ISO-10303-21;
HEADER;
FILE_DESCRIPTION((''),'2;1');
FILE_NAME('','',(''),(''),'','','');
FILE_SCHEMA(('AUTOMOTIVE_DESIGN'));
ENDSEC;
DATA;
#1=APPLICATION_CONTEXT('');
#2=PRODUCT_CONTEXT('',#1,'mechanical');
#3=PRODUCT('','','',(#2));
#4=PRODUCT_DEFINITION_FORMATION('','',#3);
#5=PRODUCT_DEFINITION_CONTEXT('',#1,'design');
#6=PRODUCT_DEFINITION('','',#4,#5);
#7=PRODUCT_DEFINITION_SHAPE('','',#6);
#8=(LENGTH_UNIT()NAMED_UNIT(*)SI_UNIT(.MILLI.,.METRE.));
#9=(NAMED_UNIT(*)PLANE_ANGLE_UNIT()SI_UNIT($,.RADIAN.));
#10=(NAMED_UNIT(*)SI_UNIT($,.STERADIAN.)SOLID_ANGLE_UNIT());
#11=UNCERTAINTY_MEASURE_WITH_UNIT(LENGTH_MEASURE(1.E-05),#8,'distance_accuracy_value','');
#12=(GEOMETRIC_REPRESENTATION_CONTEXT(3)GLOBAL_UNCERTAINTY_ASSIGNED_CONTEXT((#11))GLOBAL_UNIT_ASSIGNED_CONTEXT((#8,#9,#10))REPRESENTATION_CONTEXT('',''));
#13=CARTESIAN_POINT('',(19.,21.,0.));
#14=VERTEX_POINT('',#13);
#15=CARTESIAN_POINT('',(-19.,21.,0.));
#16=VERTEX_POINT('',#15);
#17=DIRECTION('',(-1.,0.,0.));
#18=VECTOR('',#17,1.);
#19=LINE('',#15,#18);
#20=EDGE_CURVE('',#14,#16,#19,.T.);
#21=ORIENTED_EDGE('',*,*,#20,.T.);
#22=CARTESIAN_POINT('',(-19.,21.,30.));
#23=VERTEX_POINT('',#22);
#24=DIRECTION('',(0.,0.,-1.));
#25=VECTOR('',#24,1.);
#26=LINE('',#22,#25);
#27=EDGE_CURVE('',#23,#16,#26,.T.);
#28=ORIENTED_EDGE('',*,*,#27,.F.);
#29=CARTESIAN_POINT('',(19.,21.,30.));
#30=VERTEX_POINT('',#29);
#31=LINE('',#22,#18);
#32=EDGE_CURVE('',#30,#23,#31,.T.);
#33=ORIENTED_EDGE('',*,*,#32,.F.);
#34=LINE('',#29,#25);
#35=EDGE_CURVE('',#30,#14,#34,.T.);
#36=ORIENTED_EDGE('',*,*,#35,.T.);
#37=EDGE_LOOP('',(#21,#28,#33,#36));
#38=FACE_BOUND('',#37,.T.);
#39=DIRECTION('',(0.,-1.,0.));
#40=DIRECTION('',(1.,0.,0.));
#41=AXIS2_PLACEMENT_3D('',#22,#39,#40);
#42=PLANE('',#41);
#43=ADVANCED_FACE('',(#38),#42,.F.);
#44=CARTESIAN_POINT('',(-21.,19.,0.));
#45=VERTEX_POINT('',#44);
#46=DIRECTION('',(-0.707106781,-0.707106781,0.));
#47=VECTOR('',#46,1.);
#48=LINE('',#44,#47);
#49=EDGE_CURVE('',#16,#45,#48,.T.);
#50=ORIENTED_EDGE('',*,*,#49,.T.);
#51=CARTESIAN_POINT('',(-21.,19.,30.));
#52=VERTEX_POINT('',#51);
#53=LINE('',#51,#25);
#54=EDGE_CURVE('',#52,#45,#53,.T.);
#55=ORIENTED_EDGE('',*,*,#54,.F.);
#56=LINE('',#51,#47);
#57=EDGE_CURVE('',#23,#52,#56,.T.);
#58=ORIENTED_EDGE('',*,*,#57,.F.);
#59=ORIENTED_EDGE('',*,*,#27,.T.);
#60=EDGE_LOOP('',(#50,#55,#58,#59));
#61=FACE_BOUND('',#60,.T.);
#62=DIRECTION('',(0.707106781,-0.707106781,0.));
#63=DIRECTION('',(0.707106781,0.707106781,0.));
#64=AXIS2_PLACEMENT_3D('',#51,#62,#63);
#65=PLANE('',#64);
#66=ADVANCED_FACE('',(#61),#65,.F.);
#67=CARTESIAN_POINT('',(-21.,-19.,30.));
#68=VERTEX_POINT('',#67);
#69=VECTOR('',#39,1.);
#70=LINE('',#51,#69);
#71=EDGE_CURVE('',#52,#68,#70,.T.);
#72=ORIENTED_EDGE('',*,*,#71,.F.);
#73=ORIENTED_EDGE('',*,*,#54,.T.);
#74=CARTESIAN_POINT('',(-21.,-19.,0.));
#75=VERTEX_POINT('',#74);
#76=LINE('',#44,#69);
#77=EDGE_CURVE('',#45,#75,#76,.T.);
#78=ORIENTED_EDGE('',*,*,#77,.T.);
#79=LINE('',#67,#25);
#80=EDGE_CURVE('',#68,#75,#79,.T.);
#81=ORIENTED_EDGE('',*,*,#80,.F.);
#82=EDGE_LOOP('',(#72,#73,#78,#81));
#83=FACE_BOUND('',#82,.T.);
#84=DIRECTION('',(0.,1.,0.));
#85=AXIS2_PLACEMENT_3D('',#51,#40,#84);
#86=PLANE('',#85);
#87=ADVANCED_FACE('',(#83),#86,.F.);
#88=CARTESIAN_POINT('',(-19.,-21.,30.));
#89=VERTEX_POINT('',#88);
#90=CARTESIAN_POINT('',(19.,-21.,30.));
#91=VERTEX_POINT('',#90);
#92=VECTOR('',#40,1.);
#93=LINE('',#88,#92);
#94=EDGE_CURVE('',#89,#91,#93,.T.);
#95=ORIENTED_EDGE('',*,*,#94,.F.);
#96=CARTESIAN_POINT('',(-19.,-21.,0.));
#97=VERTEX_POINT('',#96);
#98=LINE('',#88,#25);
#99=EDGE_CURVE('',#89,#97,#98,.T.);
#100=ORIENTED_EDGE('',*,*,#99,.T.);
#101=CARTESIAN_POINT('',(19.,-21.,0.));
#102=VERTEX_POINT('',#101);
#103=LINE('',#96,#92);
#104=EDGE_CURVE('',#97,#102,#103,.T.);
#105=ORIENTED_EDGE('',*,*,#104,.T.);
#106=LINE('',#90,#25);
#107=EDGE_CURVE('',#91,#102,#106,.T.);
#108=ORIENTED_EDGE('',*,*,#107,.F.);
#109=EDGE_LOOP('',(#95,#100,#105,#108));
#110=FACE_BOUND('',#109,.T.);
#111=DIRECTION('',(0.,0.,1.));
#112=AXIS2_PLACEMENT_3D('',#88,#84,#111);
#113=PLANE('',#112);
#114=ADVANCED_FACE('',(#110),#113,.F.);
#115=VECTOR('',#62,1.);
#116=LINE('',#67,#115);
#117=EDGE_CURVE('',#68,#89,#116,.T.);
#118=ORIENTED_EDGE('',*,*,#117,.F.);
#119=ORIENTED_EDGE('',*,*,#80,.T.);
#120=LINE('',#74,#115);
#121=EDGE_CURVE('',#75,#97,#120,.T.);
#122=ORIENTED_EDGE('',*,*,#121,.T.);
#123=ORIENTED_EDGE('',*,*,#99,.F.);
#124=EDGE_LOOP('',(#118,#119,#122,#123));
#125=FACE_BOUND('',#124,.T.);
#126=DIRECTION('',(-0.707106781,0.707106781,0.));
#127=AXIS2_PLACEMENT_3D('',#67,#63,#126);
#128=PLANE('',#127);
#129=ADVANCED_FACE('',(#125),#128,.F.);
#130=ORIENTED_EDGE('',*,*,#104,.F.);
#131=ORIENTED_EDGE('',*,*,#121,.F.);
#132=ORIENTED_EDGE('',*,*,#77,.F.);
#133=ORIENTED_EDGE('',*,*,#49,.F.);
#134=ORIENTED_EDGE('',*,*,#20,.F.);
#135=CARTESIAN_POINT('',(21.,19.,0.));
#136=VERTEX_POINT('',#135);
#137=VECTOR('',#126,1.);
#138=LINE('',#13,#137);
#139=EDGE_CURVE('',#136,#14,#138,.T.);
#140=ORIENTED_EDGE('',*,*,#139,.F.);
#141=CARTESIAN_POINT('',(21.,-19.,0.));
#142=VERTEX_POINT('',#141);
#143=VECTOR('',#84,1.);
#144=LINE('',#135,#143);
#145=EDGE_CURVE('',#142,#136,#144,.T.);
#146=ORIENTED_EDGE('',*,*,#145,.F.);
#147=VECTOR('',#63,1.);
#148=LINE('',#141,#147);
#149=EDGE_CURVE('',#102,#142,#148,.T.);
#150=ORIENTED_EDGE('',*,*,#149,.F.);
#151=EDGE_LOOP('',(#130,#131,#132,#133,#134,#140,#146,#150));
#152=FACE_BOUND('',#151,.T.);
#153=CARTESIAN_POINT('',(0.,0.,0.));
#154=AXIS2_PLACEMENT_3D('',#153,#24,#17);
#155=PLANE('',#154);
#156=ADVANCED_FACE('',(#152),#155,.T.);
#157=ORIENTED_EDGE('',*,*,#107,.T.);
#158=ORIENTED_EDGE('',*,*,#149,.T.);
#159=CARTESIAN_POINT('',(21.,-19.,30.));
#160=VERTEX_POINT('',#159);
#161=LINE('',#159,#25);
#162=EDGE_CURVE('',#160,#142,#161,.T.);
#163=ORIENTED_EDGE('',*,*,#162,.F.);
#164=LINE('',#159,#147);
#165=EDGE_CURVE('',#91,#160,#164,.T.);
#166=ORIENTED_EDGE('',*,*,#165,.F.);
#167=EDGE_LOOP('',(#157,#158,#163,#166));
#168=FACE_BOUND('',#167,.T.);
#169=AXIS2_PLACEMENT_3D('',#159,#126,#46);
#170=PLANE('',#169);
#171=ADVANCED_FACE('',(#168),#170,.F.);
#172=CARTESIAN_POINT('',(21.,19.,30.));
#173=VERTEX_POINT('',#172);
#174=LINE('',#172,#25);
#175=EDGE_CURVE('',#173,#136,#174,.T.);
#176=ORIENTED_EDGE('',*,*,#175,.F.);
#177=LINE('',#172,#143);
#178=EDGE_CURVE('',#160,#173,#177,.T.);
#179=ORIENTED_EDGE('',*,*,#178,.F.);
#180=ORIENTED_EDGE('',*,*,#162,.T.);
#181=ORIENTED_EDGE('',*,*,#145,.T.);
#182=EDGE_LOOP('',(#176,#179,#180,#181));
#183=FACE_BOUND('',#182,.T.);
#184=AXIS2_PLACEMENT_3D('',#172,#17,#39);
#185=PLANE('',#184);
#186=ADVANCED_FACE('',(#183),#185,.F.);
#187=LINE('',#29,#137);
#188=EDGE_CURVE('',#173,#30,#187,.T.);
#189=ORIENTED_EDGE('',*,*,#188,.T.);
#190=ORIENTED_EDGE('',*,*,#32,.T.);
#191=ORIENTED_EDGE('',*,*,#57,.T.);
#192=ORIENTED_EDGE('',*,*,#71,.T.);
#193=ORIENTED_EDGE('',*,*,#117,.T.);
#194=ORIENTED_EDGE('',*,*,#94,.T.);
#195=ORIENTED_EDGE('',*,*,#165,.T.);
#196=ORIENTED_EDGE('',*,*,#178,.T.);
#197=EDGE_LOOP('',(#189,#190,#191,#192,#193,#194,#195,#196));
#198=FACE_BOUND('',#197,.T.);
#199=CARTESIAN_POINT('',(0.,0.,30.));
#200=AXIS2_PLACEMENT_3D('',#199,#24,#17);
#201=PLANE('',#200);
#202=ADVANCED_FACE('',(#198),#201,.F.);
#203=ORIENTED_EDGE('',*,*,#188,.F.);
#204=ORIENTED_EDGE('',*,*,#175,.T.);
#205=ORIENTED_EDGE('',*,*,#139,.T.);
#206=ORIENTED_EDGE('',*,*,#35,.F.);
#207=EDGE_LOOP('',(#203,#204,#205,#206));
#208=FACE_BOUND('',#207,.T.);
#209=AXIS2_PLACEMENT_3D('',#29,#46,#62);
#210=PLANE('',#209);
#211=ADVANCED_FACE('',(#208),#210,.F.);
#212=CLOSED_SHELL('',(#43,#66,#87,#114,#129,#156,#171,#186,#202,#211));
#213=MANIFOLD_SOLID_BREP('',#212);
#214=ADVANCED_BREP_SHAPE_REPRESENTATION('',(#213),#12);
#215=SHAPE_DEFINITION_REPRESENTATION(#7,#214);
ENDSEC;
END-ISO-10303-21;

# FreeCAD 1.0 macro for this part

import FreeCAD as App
import Part
import Sketcher

V = App.Vector


def add_polygon(sketch, points):
    """Adds a closed chain of lines whose ends are joined by coincident constraints."""
    first, n = sketch.GeometryCount, len(points)
    for a, b in zip(points, points[1:] + points[:1]):
        sketch.addGeometry(Part.LineSegment(App.Vector(*a, 0), App.Vector(*b, 0)), False)
    for i in range(n):
        sketch.addConstraint(Sketcher.Constraint("Coincident", first + i, 2, first + (i + 1) % n, 1))

doc = App.newDocument("Part")
body = doc.addObject("PartDesign::Body", "Body")

sketch1 = body.newObject("Sketcher::SketchObject", "Sketch")
sketch1.AttachmentSupport = (doc.getObject("XY_Plane"), [""])
sketch1.MapMode = "FlatFace"
add_polygon(sketch1, [(-19, 21), (-21, 19), (-21, -19), (-19, -21), (19, -21), (21, -19), (21, 19), (19, 21)])
sketch1.addConstraint([
    Sketcher.Constraint("Vertical", 1),
    Sketcher.Constraint("Horizontal", 3),
    Sketcher.Constraint("Vertical", 5),
    Sketcher.Constraint("Horizontal", 7),
    Sketcher.Constraint("Symmetric", 0, 2, 4, 2, -1, 1),
    Sketcher.Constraint("Symmetric", 2, 2, 6, 2, -1, 1),
    Sketcher.Constraint("Perpendicular", 0, 2),
    Sketcher.Constraint("Perpendicular", 2, 4),
    Sketcher.Constraint("Perpendicular", 4, 6),
    Sketcher.Constraint("Horizontal", 1, 2, 4, 2),
    Sketcher.Constraint("Vertical", 3, 2, 6, 2),
    Sketcher.Constraint("Equal", 7, 1),
    Sketcher.Constraint("DistanceX", 3, 1, 3, 2, 38.0),
    Sketcher.Constraint("DistanceX", 0, 2, -1, 1, 21.0),
])
pad1 = body.newObject("PartDesign::Pad", "Pad")
pad1.Profile = sketch1
pad1.Length = 30

doc.recompute()
